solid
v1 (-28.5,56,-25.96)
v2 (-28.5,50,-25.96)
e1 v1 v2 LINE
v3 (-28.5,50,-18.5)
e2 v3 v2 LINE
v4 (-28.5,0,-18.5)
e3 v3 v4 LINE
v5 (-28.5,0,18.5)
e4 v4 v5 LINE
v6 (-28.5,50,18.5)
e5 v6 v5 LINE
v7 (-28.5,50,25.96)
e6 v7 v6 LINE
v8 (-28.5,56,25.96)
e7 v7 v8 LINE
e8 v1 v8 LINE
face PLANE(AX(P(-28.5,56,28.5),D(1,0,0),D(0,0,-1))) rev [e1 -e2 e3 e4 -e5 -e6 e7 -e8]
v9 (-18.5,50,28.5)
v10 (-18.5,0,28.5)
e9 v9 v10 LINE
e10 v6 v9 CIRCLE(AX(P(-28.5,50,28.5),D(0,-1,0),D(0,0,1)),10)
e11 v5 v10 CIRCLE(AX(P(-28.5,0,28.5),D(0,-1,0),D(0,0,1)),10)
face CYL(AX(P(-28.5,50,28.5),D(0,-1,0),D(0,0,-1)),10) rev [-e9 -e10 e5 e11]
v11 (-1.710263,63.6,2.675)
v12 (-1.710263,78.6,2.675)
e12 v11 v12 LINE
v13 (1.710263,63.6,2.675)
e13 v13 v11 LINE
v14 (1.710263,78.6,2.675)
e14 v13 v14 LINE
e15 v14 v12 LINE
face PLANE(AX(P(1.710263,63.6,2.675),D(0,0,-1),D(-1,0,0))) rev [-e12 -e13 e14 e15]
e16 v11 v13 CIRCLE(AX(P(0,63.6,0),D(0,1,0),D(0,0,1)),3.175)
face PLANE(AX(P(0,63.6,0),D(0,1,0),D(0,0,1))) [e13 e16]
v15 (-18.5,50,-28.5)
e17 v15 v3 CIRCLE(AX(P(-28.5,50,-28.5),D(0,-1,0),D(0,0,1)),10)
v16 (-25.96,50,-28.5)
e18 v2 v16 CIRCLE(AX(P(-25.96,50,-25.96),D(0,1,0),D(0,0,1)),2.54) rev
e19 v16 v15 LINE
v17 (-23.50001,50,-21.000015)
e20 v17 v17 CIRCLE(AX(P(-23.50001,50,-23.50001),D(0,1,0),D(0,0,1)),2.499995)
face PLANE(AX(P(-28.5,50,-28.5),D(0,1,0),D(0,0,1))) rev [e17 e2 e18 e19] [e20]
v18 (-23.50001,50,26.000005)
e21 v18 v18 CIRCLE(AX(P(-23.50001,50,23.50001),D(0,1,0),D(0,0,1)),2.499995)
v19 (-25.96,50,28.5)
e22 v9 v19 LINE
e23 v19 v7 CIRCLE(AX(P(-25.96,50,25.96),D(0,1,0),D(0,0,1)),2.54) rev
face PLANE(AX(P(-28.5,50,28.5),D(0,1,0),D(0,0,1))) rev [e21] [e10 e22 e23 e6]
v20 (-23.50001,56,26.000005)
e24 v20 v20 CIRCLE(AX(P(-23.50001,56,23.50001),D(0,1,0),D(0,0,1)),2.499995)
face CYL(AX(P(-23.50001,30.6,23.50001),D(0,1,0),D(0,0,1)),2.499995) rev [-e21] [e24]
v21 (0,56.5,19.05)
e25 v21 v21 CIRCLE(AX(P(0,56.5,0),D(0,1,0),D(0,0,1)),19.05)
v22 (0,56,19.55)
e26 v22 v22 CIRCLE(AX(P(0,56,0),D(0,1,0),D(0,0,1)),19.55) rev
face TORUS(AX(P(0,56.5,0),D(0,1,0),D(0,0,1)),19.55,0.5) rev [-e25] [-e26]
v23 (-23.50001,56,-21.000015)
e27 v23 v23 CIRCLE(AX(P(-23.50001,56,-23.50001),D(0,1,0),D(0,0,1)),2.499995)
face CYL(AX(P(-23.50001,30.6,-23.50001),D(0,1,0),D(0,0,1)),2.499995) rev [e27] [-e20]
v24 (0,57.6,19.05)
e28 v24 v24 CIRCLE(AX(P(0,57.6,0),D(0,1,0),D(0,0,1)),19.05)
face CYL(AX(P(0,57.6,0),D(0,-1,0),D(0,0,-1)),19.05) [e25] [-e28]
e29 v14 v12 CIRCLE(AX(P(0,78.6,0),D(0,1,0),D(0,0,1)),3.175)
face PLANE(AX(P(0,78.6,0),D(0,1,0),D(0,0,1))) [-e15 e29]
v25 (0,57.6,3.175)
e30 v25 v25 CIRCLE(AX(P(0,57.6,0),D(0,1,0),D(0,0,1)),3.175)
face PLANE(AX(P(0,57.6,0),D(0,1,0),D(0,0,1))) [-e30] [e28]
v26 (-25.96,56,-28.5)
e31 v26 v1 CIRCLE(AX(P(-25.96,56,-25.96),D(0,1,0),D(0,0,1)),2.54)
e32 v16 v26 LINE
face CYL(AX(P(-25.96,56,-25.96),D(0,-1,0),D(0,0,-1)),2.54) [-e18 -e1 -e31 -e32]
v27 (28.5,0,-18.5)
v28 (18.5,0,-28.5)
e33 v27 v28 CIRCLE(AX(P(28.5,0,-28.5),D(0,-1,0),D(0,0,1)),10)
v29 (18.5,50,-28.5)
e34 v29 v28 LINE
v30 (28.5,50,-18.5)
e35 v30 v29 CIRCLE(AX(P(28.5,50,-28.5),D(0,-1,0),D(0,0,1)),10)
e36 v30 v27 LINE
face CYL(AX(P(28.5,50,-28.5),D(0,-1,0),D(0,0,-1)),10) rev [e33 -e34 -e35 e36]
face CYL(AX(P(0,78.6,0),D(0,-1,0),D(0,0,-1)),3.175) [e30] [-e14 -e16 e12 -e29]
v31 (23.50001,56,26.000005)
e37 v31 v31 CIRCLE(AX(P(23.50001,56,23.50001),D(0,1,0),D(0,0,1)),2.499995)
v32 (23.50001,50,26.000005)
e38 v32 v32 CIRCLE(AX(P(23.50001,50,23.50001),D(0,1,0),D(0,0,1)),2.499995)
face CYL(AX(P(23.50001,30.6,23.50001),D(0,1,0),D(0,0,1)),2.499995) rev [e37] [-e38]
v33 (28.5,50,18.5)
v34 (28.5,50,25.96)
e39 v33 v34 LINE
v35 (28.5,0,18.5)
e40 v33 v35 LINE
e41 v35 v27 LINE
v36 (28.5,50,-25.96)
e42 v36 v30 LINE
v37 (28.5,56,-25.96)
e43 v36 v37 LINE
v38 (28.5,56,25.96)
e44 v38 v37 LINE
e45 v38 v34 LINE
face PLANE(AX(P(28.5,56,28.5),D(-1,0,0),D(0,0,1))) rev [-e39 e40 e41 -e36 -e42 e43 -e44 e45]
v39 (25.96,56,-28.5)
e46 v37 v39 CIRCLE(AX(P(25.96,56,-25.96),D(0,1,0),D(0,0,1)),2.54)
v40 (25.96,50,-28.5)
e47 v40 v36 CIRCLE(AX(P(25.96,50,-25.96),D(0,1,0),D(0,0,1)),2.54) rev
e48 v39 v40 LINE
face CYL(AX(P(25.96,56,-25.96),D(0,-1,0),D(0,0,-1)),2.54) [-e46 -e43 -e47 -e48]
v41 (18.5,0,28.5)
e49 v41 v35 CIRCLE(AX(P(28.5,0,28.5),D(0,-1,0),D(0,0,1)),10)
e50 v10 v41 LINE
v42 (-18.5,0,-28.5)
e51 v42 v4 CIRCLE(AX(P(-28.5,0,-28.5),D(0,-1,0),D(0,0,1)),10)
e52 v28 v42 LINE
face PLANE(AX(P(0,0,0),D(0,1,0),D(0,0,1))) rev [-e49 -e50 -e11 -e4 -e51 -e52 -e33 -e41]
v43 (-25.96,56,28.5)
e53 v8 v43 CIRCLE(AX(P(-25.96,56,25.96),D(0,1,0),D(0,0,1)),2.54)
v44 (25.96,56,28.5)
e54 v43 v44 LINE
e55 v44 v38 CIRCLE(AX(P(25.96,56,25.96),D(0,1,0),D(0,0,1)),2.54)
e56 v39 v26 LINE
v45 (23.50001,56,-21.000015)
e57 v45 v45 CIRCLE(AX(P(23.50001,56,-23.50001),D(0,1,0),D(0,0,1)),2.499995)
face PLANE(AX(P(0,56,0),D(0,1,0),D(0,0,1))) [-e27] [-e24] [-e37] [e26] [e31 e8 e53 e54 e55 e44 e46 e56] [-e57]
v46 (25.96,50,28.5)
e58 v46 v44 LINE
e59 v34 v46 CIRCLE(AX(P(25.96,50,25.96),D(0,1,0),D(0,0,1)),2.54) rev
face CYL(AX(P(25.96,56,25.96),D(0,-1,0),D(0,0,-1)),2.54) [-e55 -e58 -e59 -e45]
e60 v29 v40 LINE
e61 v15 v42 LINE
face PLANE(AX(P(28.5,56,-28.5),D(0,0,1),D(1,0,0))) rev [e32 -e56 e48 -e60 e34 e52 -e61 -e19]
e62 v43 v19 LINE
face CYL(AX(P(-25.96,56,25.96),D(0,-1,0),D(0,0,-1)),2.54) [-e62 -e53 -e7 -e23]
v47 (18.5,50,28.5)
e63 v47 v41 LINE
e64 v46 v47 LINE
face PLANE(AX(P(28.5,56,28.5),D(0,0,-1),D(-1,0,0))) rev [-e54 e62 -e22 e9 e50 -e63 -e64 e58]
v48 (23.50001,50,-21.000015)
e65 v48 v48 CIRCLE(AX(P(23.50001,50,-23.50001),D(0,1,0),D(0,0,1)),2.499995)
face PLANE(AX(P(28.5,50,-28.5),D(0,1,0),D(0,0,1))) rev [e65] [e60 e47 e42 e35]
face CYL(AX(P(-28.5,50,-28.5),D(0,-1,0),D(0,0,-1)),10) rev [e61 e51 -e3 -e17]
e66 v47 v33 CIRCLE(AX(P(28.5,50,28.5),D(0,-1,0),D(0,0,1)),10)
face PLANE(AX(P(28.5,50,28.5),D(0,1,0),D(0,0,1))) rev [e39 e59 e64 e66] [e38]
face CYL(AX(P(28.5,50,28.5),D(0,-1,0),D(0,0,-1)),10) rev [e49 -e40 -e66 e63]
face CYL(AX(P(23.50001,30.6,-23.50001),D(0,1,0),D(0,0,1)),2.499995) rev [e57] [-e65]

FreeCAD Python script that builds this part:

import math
import FreeCAD as App
import Part
import Sketcher
Q = App.Units.Quantity


def edges_at(feature, points):
    """Names of the edges that pass closest to the given points."""
    edges = feature.Shape.Edges
    near = lambda p: min(range(len(edges)), key=lambda i: edges[i].distToShape(Part.Vertex(*p))[0])
    return sorted({f"Edge{near(p) + 1}" for p in points})

doc = App.newDocument("Part")
body = doc.addObject("PartDesign::Body", "Body")

sketch1 = doc.addObject("Sketcher::SketchObject", "Sketch")
body.addObject(sketch1)
sketch1.AttachmentSupport = (doc.XZ_Plane, [""])
sketch1.MapMode = "FlatFace"
sketch1.addGeometry([
    Part.LineSegment(App.Vector(-28, -28, 0), App.Vector(-28, 28, 0)),
    Part.LineSegment(App.Vector(-28, 28, 0), App.Vector(28, 28, 0)),
    Part.LineSegment(App.Vector(28, 28, 0), App.Vector(28, -28, 0)),
    Part.LineSegment(App.Vector(28, -28, 0), App.Vector(-28, -28, 0)),
], False)
sketch1.addConstraint([
    Sketcher.Constraint("Coincident", 0, 2, 1, 1),
    Sketcher.Constraint("Coincident", 1, 2, 2, 1),
    Sketcher.Constraint("Coincident", 2, 2, 3, 1),
    Sketcher.Constraint("Coincident", 3, 2, 0, 1),
    Sketcher.Constraint("Vertical", 0),
    Sketcher.Constraint("Horizontal", 1),
    Sketcher.Constraint("Vertical", 2),
    Sketcher.Constraint("Horizontal", 3),
    Sketcher.Constraint("Symmetric", 0, 2, 2, 2, -1, 1),
    Sketcher.Constraint("Equal", 3, 0),
    Sketcher.Constraint("DistanceX", 1, 1, 1, 2, Q("57 mm")),
])
pad1 = doc.addObject("PartDesign::Pad", "Pad")
body.addObject(pad1)
pad1.Profile = sketch1
pad1.Length = 56
pad1.Reversed = True

sketch2 = doc.addObject("Sketcher::SketchObject", "Sketch001")
body.addObject(sketch2)
sketch2.AttachmentSupport = (doc.XZ_Plane, [""])
sketch2.MapMode = "FlatFace"
sketch2.addGeometry([
    Part.LineSegment(App.Vector(28, -28, 0), App.Vector(28, -18, 0)),
    Part.ArcOfCircle(Part.Circle(App.Vector(28, -28, 0), App.Vector(0, 0, 1), 10), math.radians(90), math.radians(180)),
    Part.LineSegment(App.Vector(18, -28, 0), App.Vector(28, -28, 0)),
    Part.LineSegment(App.Vector(-28, -18, 0), App.Vector(-28, -28, 0)),
    Part.LineSegment(App.Vector(-28, -28, 0), App.Vector(-18, -28, 0)),
    Part.ArcOfCircle(Part.Circle(App.Vector(-28, -28, 0), App.Vector(0, 0, 1), 10), math.radians(0), math.radians(90)),
    Part.LineSegment(App.Vector(-18, 28, 0), App.Vector(-28, 28, 0)),
    Part.LineSegment(App.Vector(-28, 28, 0), App.Vector(-28, 18, 0)),
    Part.ArcOfCircle(Part.Circle(App.Vector(-28, 28, 0), App.Vector(0, 0, 1), 10), math.radians(-90), math.radians(0)),
    Part.LineSegment(App.Vector(28, 18, 0), App.Vector(28, 28, 0)),
    Part.LineSegment(App.Vector(28, 28, 0), App.Vector(18, 28, 0)),
    Part.ArcOfCircle(Part.Circle(App.Vector(28, 28, 0), App.Vector(0, 0, 1), 10), math.radians(180), math.radians(270)),
], False)
sketch2.addConstraint([
    Sketcher.Constraint("Coincident", 0, 2, 1, 1),
    Sketcher.Constraint("Coincident", 1, 2, 2, 1),
    Sketcher.Constraint("Coincident", 2, 2, 0, 1),
    Sketcher.Constraint("Coincident", 3, 2, 4, 1),
    Sketcher.Constraint("Coincident", 4, 2, 5, 1),
    Sketcher.Constraint("Coincident", 5, 2, 3, 1),
    Sketcher.Constraint("Coincident", 6, 2, 7, 1),
    Sketcher.Constraint("Coincident", 7, 2, 8, 1),
    Sketcher.Constraint("Coincident", 8, 2, 6, 1),
    Sketcher.Constraint("Coincident", 9, 2, 10, 1),
    Sketcher.Constraint("Coincident", 10, 2, 11, 1),
    Sketcher.Constraint("Coincident", 11, 2, 9, 1),
    Sketcher.Constraint("Vertical", 0),
    Sketcher.Constraint("Horizontal", 2),
    Sketcher.Constraint("Vertical", 3),
    Sketcher.Constraint("Horizontal", 4),
    Sketcher.Constraint("Horizontal", 6),
    Sketcher.Constraint("Vertical", 7),
    Sketcher.Constraint("Vertical", 9),
    Sketcher.Constraint("Horizontal", 10),
    Sketcher.Constraint("Coincident", 2, 2, 1, 3),
    Sketcher.Constraint("Coincident", 3, 2, 5, 3),
    Sketcher.Constraint("Coincident", 6, 2, 8, 3),
    Sketcher.Constraint("Coincident", 9, 2, 11, 3),
    Sketcher.Constraint("Equal", 1, 5),
    Sketcher.Constraint("Equal", 5, 8),
    Sketcher.Constraint("Equal", 8, 11),
    Sketcher.Constraint("Symmetric", 1, 3, 8, 3, -1, 1),
    Sketcher.Constraint("Symmetric", 5, 3, 11, 3, -1, 1),
    Sketcher.Constraint("Symmetric", 1, 3, 5, 3, -2),
    Sketcher.Constraint("Radius", 1, Q("10 mm")),
    Sketcher.Constraint("DistanceX", 5, 3, 1, 3, Q("57 mm")),
    Sketcher.Constraint("DistanceY", 5, 3, 8, 3, Q("57 mm")),
])
pocket1 = doc.addObject("PartDesign::Pocket", "Pocket")
body.addObject(pocket1)
pocket1.Profile = sketch2
pocket1.Length = 50
doc.recompute()

fillet = doc.addObject("PartDesign::Fillet", "Fillet")
body.addObject(fillet)
fillet.Base = (pocket1, edges_at(pocket1, [
    (-28.5, 53, -28.5),
    (28.5, 53, -28.5),
    (28.5, 53, 28.5),
    (-28.5, 53, 28.5),
]))
fillet.Radius = 2.54

sketch3 = doc.addObject("Sketcher::SketchObject", "Sketch002")
body.addObject(sketch3)
sketch3.AttachmentSupport = (doc.XZ_Plane, [""])
sketch3.MapMode = "FlatFace"
sketch3.AttachmentOffset = App.Placement(App.Vector(0, 0, -56), App.Rotation())
sketch3.addGeometry([
    Part.Circle(App.Vector(-23.5, 23.5, 0), App.Vector(0, 0, 1), 2.5),
    Part.Circle(App.Vector(-23.5, -23.5, 0), App.Vector(0, 0, 1), 2.5),
    Part.Circle(App.Vector(23.5, -23.5, 0), App.Vector(0, 0, 1), 2.5),
    Part.Circle(App.Vector(23.5, 23.5, 0), App.Vector(0, 0, 1), 2.5),
], False)
sketch3.addConstraint([
    Sketcher.Constraint("Equal", 0, 1),
    Sketcher.Constraint("Equal", 1, 2),
    Sketcher.Constraint("Equal", 2, 3),
    Sketcher.Constraint("Symmetric", 0, 3, 2, 3, -1, 1),
    Sketcher.Constraint("Symmetric", 1, 3, 3, 3, -1, 1),
    Sketcher.Constraint("Symmetric", 1, 3, 2, 3, -2),
    Sketcher.Constraint("Diameter", 0, Q("4.99999 mm")),
    Sketcher.Constraint("DistanceX", 0, 3, -1, 1, Q("23.50001 mm")),
    Sketcher.Constraint("DistanceY", -1, 1, 0, 3, Q("23.50001 mm")),
])
pocket2 = doc.addObject("PartDesign::Pocket", "Pocket001")
body.addObject(pocket2)
pocket2.Profile = sketch3
pocket2.Length = 25.4
pocket2.Reversed = True

sketch4 = doc.addObject("Sketcher::SketchObject", "Sketch003")
body.addObject(sketch4)
sketch4.AttachmentSupport = (doc.XZ_Plane, [""])
sketch4.MapMode = "FlatFace"
sketch4.AttachmentOffset = App.Placement(App.Vector(0, 0, -56), App.Rotation())
sketch4.addGeometry(Part.Circle(App.Vector(0, 0, 0), App.Vector(0, 0, 1), 19), False)
sketch4.addConstraint([
    Sketcher.Constraint("Coincident", 0, 3, -1, 1),
    Sketcher.Constraint("Diameter", 0, Q("38.1 mm")),
])
pad2 = doc.addObject("PartDesign::Pad", "Pad001")
body.addObject(pad2)
pad2.Profile = sketch4
pad2.Length = 1.6
pad2.Reversed = True
doc.recompute()

fillet2 = doc.addObject("PartDesign::Fillet", "Fillet001")
body.addObject(fillet2)
fillet2.Base = (pad2, edges_at(pad2, [(-19.05, 56, 0)]))
fillet2.Radius = 0.5

sketch5 = doc.addObject("Sketcher::SketchObject", "Sketch004")
body.addObject(sketch5)
sketch5.AttachmentSupport = (doc.XZ_Plane, [""])
sketch5.MapMode = "FlatFace"
sketch5.AttachmentOffset = App.Placement(App.Vector(0, 0, -57.6), App.Rotation())
sketch5.addGeometry(Part.Circle(App.Vector(0, 0, 0), App.Vector(0, 0, 1), 3.2), False)
sketch5.addConstraint([
    Sketcher.Constraint("Coincident", 0, 3, -1, 1),
    Sketcher.Constraint("Diameter", 0, Q("6.35 mm")),
])
pad3 = doc.addObject("PartDesign::Pad", "Pad002")
body.addObject(pad3)
pad3.Profile = sketch5
pad3.Length = 21
pad3.Reversed = True

sketch6 = doc.addObject("Sketcher::SketchObject", "Sketch005")
body.addObject(sketch6)
sketch6.AttachmentSupport = (doc.XZ_Plane, [""])
sketch6.MapMode = "FlatFace"
sketch6.AttachmentOffset = App.Placement(App.Vector(0, 0, -78.6), App.Rotation())
sketch6.addGeometry([
    Part.LineSegment(App.Vector(1.7, 2.7, 0), App.Vector(-1.7, 2.7, 0)),
    Part.ArcOfCircle(Part.Circle(App.Vector(0, 0, 0), App.Vector(0, 0, 1), 3.2), math.radians(57), math.radians(123)),
], False)
sketch6.addConstraint([
    Sketcher.Constraint("Coincident", 0, 1, 1, 1),
    Sketcher.Constraint("Coincident", 1, 2, 0, 2),
    Sketcher.Constraint("Horizontal", 0),
    Sketcher.Constraint("Coincident", 1, 3, -1, 1),
    Sketcher.Constraint("Radius", 1, Q("3.175 mm")),
    Sketcher.Constraint("DistanceY", -1, 1, 0, 1, Q("2.675 mm")),
])
pocket3 = doc.addObject("PartDesign::Pocket", "Pocket002")
body.addObject(pocket3)
pocket3.Profile = sketch6
pocket3.Length = 15
pocket3.Reversed = True

doc.recompute()
